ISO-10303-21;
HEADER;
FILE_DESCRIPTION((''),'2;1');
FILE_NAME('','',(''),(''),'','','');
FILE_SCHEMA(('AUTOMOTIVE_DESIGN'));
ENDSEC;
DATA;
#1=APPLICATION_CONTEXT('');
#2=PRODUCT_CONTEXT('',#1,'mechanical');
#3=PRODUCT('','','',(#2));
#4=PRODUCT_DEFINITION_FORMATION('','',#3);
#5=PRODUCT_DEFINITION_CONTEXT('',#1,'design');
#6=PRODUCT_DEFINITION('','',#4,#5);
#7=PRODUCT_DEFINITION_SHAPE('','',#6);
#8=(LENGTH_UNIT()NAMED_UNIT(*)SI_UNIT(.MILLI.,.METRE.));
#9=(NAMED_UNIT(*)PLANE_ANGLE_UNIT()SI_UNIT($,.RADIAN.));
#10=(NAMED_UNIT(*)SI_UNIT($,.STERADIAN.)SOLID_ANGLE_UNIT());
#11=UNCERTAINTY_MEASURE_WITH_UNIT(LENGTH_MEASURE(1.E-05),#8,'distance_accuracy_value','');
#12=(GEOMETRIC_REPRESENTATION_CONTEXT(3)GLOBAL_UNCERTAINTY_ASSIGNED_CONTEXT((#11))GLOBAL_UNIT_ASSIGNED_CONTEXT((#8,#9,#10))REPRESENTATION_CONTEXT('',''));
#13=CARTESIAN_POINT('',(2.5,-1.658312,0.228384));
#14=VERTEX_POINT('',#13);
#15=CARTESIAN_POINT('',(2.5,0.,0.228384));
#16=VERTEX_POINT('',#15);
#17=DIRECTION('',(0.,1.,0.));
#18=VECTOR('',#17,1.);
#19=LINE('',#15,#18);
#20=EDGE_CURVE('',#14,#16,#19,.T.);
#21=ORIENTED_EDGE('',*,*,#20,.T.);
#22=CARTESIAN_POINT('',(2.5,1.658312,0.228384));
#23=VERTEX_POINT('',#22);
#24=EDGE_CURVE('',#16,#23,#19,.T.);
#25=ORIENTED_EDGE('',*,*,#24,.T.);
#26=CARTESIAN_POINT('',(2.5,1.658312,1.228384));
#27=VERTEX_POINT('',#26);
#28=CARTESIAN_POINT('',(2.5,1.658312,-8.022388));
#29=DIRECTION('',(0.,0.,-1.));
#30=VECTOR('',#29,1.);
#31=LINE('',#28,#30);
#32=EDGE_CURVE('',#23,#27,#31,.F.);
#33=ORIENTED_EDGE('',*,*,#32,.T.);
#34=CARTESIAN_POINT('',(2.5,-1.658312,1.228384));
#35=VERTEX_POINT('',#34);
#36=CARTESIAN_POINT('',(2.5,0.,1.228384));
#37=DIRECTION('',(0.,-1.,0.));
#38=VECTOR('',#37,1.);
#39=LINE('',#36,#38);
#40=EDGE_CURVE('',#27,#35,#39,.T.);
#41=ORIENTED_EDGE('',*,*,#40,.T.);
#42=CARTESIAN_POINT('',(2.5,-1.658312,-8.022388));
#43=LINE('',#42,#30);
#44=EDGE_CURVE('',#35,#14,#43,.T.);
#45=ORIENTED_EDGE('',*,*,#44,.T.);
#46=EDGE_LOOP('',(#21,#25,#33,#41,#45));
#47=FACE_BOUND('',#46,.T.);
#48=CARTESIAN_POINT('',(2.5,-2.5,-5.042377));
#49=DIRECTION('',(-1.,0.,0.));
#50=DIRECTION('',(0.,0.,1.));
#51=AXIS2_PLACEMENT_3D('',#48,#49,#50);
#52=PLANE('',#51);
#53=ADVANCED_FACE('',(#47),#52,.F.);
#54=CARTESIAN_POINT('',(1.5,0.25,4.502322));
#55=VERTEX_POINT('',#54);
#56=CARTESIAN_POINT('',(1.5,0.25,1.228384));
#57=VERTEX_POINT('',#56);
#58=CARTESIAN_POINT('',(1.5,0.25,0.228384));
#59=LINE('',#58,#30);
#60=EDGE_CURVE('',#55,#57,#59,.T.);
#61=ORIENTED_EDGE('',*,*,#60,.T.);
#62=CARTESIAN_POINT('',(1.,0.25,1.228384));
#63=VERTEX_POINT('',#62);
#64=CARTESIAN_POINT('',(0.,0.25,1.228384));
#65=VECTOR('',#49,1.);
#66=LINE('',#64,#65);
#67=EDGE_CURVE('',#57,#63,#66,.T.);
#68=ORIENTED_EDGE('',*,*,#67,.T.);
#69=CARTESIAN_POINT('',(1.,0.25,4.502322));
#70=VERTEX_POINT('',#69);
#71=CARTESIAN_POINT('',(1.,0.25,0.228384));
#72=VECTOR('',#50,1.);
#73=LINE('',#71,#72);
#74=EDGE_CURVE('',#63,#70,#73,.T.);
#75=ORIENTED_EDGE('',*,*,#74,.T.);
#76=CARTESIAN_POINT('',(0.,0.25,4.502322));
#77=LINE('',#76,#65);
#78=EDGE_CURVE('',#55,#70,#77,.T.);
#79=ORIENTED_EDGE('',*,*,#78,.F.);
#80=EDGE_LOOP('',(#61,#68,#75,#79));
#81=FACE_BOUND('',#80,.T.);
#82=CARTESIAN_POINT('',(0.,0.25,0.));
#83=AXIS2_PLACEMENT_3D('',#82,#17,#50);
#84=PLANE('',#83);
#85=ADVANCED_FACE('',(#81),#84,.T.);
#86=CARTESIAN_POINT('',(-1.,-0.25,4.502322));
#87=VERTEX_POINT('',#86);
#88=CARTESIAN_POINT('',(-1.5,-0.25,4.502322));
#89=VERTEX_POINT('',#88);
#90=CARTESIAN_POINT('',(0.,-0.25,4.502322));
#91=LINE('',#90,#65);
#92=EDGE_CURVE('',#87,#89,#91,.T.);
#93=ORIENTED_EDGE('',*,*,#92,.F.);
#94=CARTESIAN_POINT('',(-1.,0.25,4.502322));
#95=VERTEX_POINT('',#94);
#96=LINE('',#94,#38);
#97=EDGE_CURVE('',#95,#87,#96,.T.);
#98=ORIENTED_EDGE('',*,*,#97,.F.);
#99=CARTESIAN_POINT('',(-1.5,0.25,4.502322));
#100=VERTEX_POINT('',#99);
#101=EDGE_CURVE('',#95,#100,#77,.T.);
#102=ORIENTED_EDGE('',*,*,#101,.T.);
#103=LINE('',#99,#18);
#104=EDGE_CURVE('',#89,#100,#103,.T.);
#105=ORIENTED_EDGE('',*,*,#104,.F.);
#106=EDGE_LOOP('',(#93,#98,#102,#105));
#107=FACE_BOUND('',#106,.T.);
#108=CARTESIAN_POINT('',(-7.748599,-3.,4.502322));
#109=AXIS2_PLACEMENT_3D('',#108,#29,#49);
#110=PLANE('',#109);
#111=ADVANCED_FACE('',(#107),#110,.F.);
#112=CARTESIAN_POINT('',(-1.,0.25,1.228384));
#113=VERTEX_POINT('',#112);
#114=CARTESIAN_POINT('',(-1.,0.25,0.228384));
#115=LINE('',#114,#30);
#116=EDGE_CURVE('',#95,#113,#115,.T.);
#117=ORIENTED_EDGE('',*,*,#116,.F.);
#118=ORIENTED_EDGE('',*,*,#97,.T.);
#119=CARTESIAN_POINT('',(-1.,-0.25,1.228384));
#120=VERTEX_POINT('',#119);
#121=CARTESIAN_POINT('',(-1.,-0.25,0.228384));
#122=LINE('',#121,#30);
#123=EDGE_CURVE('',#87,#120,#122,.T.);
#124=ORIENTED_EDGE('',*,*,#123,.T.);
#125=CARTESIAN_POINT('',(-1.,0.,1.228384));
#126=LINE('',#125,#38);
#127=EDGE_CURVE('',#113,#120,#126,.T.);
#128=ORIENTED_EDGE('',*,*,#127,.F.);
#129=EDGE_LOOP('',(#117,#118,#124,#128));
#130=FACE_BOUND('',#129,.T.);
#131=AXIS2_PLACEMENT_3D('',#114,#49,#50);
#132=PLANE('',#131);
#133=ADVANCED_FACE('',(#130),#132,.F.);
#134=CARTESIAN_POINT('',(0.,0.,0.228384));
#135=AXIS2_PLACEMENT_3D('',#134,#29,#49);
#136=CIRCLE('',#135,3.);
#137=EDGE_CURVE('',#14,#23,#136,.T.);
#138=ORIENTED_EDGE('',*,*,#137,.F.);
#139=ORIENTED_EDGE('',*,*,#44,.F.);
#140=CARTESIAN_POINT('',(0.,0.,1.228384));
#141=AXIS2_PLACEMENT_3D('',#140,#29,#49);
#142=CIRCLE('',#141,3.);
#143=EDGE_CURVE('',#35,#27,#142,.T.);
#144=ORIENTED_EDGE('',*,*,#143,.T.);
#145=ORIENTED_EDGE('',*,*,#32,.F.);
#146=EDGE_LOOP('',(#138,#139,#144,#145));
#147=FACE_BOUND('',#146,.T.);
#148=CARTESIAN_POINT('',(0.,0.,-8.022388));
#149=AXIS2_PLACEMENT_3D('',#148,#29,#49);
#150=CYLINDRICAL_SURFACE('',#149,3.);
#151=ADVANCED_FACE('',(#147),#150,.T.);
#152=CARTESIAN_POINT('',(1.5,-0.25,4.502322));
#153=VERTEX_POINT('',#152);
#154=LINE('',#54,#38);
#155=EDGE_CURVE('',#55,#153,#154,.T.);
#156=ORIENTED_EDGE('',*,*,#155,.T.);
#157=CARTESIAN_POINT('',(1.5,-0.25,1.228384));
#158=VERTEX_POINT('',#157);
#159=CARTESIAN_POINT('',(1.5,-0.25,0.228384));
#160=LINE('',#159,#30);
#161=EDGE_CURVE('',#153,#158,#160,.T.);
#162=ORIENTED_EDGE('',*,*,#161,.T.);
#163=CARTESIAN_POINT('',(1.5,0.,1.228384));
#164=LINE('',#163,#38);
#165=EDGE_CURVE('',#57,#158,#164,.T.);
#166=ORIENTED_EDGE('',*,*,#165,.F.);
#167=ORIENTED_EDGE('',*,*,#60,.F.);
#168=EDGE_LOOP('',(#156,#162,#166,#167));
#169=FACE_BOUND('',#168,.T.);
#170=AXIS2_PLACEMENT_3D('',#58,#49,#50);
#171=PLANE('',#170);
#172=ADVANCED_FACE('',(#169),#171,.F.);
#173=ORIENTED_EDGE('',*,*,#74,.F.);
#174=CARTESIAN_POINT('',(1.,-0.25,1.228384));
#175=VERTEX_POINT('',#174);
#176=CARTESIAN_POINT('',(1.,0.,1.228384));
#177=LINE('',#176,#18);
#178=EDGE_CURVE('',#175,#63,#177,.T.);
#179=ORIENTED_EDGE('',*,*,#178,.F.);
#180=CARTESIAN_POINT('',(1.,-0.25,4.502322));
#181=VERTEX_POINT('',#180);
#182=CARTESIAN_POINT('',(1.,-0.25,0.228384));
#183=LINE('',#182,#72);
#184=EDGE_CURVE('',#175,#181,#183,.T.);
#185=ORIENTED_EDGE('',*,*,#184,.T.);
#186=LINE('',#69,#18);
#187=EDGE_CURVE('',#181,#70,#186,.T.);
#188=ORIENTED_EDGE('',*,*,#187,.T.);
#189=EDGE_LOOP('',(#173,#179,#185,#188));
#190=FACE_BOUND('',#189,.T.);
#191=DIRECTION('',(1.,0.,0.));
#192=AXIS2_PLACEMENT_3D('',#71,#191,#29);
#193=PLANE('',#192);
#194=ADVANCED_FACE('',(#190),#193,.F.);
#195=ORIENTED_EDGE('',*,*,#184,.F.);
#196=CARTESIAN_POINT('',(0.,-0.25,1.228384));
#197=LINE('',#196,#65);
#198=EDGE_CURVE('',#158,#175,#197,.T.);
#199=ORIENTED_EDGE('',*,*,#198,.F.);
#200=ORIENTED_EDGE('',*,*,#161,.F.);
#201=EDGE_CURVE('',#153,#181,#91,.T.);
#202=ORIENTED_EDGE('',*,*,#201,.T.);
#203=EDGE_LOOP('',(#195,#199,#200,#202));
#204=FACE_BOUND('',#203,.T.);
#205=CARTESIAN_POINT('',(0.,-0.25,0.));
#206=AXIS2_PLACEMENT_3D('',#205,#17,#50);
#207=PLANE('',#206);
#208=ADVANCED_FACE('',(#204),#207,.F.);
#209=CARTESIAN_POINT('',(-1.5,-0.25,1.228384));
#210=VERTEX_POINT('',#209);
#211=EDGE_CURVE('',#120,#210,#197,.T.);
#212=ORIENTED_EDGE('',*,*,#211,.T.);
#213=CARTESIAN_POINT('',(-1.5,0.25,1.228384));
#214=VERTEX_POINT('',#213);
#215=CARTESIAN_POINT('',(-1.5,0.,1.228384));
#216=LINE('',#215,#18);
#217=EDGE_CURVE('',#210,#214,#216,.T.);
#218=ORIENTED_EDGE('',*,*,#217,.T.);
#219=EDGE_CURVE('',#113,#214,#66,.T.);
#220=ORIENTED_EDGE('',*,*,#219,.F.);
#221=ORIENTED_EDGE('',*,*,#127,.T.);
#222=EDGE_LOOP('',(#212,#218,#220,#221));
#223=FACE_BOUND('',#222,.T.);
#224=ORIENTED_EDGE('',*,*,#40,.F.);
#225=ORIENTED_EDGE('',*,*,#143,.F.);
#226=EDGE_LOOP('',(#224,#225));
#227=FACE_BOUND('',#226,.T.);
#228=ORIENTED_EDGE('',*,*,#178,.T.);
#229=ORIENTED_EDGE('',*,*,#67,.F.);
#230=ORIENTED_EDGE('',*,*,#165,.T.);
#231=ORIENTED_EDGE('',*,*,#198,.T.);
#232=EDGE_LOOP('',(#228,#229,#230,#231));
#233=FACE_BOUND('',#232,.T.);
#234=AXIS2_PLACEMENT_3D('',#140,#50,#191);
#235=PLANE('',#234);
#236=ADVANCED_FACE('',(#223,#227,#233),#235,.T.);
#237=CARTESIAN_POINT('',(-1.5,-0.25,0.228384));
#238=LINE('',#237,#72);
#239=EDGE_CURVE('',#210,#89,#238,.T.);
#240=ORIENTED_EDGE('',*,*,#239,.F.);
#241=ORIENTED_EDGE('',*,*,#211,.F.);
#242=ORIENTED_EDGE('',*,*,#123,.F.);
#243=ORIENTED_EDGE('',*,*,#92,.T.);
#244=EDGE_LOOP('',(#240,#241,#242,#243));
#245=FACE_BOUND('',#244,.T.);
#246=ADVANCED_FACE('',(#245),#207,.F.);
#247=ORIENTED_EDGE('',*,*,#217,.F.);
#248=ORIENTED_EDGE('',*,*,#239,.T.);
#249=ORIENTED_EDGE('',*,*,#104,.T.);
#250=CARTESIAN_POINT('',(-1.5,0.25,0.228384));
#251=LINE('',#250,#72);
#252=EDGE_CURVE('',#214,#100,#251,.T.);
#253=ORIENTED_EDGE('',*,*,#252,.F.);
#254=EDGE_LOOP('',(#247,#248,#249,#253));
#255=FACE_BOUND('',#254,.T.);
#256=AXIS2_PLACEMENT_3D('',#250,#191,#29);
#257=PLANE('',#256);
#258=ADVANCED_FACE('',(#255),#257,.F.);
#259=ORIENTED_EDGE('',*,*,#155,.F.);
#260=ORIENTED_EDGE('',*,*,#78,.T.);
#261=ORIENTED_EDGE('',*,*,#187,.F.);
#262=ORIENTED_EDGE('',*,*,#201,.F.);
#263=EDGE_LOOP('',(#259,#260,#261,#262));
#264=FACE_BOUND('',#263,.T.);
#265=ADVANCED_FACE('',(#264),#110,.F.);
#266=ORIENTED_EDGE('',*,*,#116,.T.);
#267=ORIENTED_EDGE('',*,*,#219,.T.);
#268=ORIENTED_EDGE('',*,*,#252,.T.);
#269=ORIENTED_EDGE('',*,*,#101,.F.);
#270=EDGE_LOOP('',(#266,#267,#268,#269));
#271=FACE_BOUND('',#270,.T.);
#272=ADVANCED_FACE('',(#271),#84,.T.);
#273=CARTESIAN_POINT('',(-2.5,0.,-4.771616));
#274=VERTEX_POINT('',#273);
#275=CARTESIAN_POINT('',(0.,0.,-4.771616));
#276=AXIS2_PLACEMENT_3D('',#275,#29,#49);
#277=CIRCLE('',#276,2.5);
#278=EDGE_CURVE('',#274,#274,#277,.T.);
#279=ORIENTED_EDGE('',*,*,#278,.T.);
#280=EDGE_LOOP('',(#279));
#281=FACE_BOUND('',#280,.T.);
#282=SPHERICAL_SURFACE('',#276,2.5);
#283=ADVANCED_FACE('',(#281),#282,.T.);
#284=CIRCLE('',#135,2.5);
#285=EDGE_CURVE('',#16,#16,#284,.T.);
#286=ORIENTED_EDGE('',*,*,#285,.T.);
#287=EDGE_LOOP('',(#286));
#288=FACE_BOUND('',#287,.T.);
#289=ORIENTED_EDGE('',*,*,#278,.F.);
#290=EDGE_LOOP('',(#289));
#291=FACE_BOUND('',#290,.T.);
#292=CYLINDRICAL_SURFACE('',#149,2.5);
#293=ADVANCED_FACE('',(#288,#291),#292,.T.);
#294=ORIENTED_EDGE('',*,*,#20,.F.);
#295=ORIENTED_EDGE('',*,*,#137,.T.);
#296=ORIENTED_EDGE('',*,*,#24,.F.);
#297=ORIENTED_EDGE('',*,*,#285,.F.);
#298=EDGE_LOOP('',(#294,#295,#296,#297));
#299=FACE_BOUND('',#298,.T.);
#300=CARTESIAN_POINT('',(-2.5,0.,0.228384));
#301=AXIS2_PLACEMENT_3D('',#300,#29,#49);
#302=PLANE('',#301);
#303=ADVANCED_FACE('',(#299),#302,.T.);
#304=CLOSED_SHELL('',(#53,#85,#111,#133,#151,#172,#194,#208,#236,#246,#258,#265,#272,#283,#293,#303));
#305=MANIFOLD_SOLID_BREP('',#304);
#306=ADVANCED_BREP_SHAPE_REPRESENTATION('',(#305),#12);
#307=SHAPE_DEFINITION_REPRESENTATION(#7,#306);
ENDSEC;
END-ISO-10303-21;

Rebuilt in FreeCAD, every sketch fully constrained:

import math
import FreeCAD as App
import Part
import Sketcher

V = App.Vector
Q = App.Units.Quantity


def add_polygon(sketch, points):
    """Adds a closed chain of lines whose ends are joined by coincident constraints."""
    first, n = sketch.GeometryCount, len(points)
    for a, b in zip(points, points[1:] + points[:1]):
        sketch.addGeometry(Part.LineSegment(App.Vector(*a, 0), App.Vector(*b, 0)), False)
    for i in range(n):
        sketch.addConstraint(Sketcher.Constraint("Coincident", first + i, 2, first + (i + 1) % n, 1))

doc = App.newDocument("Part")
body = doc.addObject("PartDesign::Body", "Body")

sketch1 = body.newObject("Sketcher::SketchObject", "Sketch")
sketch1.AttachmentSupport = (doc.getObject("XZ_Plane"), [""])
sketch1.MapMode = "FlatFace"
sketch1.addGeometry([
    Part.LineSegment(V(-2.5, -4.8, 0), V(-2.5, 0.2, 0)),
    Part.LineSegment(V(-2.5, 0.2, 0), V(-3, 0.2, 0)),
    Part.LineSegment(V(-3, 0.2, 0), V(-3, 1.2, 0)),
    Part.LineSegment(V(-3, 1.2, 0), V(0, 1.2, 0)),
    Part.LineSegment(V(0, 1.2, 0), V(0, -7.3, 0)),
    Part.ArcOfCircle(Part.Circle(V(0, -4.8, 0), V(0, 0, 1), 2.5), math.radians(180), math.radians(270)),
], False)
sketch1.addConstraint([
    Sketcher.Constraint("Coincident", 0, 2, 1, 1),
    Sketcher.Constraint("Coincident", 1, 2, 2, 1),
    Sketcher.Constraint("Coincident", 2, 2, 3, 1),
    Sketcher.Constraint("Coincident", 3, 2, 4, 1),
    Sketcher.Constraint("Coincident", 4, 2, 5, 2),
    Sketcher.Constraint("Tangent", 5, 1, 0, 1),
    Sketcher.Constraint("Vertical", 0),
    Sketcher.Constraint("Horizontal", 1),
    Sketcher.Constraint("Vertical", 2),
    Sketcher.Constraint("Horizontal", 3),
    Sketcher.Constraint("Vertical", 4),
    Sketcher.Constraint("PointOnObject", 5, 3, -2),
    Sketcher.Constraint("PointOnObject", 3, 2, -2),
    Sketcher.Constraint("Radius", 5, Q("2.5 mm")),
    Sketcher.Constraint("DistanceX", 3, 1, 3, 2, Q("3 mm")),
    Sketcher.Constraint("DistanceY", 0, 1, 0, 2, Q("5 mm")),
    Sketcher.Constraint("DistanceY", 2, 1, 2, 2, Q("1 mm")),
    Sketcher.Constraint("DistanceY", 5, 3, -1, 1, Q("4.771616 mm")),
])
revolution = body.newObject("PartDesign::Revolution", "Revolution")
revolution.Profile = sketch1
revolution.ReferenceAxis = (sketch1, ["V_Axis"])
revolution.Angle = 360

sketch2 = body.newObject("Sketcher::SketchObject", "Sketch001")
sketch2.AttachmentSupport = (doc.getObject("XZ_Plane"), [""])
sketch2.MapMode = "FlatFace"
add_polygon(sketch2, [(-1.5, 0.2), (-1.5, 29.2), (-1, 29.2), (-1, 0.2)])
add_polygon(sketch2, [(1, 0.2), (1, 27.2), (1.5, 27.2), (1.5, 0.2)])
sketch2.addConstraint([
    Sketcher.Constraint("Vertical", 0),
    Sketcher.Constraint("Horizontal", 1),
    Sketcher.Constraint("Vertical", 2),
    Sketcher.Constraint("Horizontal", 3),
    Sketcher.Constraint("Vertical", 4),
    Sketcher.Constraint("Horizontal", 5),
    Sketcher.Constraint("Vertical", 6),
    Sketcher.Constraint("Horizontal", 7),
    Sketcher.Constraint("Symmetric", 3, 2, 6, 2, -2),
    Sketcher.Constraint("Equal", 3, 5),
    Sketcher.Constraint("DistanceY", 0, 1, 0, 2, Q("29 mm")),
    Sketcher.Constraint("DistanceY", 4, 1, 4, 2, Q("27 mm")),
    Sketcher.Constraint("DistanceX", 1, 1, 1, 2, Q("0.5 mm")),
    Sketcher.Constraint("DistanceX", 1, 2, -1, 1, Q("1 mm")),
    Sketcher.Constraint("DistanceY", -1, 1, 0, 2, Q("29.228384 mm")),
])
pad1 = body.newObject("PartDesign::Pad", "Pad")
pad1.Profile = sketch2
pad1.Length = 0.5
pad1.Midplane = True

sketch3 = body.newObject("Sketcher::SketchObject", "Sketch002")
sketch3.AttachmentSupport = (doc.getObject("XZ_Plane"), [""])
sketch3.MapMode = "FlatFace"
add_polygon(sketch3, [(2.5, -5), (2.5, 6.6), (5.6, 6.6), (5.6, -5)])
sketch3.addConstraint([
    Sketcher.Constraint("Vertical", 0),
    Sketcher.Constraint("Horizontal", 1),
    Sketcher.Constraint("Vertical", 2),
    Sketcher.Constraint("Horizontal", 3),
    Sketcher.Constraint("DistanceX", -1, 1, 0, 2, Q("2.5 mm")),
    Sketcher.Constraint("DistanceX", 1, 1, 1, 2, Q("3.089069 mm")),
    Sketcher.Constraint("DistanceY", 0, 1, 0, 2, Q("11.690007 mm")),
    Sketcher.Constraint("DistanceY", -1, 1, 0, 2, Q("6.64763 mm")),
])
pocket1 = body.newObject("PartDesign::Pocket", "Pocket")
pocket1.Profile = sketch3
pocket1.Length = 5
pocket1.Midplane = True

sketch4 = body.newObject("Sketcher::SketchObject", "Sketch003")
sketch4.AttachmentSupport = (doc.getObject("XZ_Plane"), [""])
sketch4.MapMode = "FlatFace"
add_polygon(sketch4, [(-8, 5), (-8, 32), (9, 32), (9, 5)])
sketch4.addConstraint([
    Sketcher.Constraint("Vertical", 0),
    Sketcher.Constraint("Horizontal", 1),
    Sketcher.Constraint("Vertical", 2),
    Sketcher.Constraint("Horizontal", 3),
    Sketcher.Constraint("DistanceY", 0, 1, 0, 2, Q("27.873579 mm")),
    Sketcher.Constraint("DistanceX", 0, 2, -1, 1, Q("7.748599 mm")),
    Sketcher.Constraint("DistanceY", -1, 1, 0, 2, Q("32.3759 mm")),
    Sketcher.Constraint("DistanceX", 1, 1, 1, 2, Q("17.118013 mm")),
])
pocket2 = body.newObject("PartDesign::Pocket", "Pocket001")
pocket2.Profile = sketch4
pocket2.Type = "ThroughAll"
pocket2.Midplane = True

doc.recompute()
